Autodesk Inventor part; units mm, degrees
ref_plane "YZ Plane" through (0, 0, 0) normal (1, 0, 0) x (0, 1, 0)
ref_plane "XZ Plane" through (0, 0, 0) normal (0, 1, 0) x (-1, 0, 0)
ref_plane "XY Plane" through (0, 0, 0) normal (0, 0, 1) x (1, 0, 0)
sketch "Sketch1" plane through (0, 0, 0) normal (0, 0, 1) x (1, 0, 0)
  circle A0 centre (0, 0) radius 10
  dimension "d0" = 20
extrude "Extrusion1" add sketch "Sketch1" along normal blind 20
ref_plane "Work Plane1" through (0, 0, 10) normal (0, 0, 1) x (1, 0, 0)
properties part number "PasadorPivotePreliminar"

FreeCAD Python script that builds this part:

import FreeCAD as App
import Part
import Sketcher
from FreeCAD import Vector
Q = App.Units.Quantity

doc = App.newDocument("Part")
body = doc.addObject("PartDesign::Body", "Body")

sketch1 = doc.addObject("Sketcher::SketchObject", "Sketch")
body.addObject(sketch1)
sketch1.AttachmentSupport = (doc.XY_Plane, [""])
sketch1.MapMode = "FlatFace"
sketch1.addGeometry(Part.Circle(Vector(0, 0, 0), Vector(0, 0, 1), 10), False)
sketch1.addConstraint(Sketcher.Constraint("Coincident", 0, 3, -1, 1))
sketch1.addConstraint(Sketcher.Constraint("Diameter", 0, Q("20 mm")))
pad1 = doc.addObject("PartDesign::Pad", "Pad")
body.addObject(pad1)
pad1.Profile = sketch1
pad1.Length = 20

doc.recompute()
